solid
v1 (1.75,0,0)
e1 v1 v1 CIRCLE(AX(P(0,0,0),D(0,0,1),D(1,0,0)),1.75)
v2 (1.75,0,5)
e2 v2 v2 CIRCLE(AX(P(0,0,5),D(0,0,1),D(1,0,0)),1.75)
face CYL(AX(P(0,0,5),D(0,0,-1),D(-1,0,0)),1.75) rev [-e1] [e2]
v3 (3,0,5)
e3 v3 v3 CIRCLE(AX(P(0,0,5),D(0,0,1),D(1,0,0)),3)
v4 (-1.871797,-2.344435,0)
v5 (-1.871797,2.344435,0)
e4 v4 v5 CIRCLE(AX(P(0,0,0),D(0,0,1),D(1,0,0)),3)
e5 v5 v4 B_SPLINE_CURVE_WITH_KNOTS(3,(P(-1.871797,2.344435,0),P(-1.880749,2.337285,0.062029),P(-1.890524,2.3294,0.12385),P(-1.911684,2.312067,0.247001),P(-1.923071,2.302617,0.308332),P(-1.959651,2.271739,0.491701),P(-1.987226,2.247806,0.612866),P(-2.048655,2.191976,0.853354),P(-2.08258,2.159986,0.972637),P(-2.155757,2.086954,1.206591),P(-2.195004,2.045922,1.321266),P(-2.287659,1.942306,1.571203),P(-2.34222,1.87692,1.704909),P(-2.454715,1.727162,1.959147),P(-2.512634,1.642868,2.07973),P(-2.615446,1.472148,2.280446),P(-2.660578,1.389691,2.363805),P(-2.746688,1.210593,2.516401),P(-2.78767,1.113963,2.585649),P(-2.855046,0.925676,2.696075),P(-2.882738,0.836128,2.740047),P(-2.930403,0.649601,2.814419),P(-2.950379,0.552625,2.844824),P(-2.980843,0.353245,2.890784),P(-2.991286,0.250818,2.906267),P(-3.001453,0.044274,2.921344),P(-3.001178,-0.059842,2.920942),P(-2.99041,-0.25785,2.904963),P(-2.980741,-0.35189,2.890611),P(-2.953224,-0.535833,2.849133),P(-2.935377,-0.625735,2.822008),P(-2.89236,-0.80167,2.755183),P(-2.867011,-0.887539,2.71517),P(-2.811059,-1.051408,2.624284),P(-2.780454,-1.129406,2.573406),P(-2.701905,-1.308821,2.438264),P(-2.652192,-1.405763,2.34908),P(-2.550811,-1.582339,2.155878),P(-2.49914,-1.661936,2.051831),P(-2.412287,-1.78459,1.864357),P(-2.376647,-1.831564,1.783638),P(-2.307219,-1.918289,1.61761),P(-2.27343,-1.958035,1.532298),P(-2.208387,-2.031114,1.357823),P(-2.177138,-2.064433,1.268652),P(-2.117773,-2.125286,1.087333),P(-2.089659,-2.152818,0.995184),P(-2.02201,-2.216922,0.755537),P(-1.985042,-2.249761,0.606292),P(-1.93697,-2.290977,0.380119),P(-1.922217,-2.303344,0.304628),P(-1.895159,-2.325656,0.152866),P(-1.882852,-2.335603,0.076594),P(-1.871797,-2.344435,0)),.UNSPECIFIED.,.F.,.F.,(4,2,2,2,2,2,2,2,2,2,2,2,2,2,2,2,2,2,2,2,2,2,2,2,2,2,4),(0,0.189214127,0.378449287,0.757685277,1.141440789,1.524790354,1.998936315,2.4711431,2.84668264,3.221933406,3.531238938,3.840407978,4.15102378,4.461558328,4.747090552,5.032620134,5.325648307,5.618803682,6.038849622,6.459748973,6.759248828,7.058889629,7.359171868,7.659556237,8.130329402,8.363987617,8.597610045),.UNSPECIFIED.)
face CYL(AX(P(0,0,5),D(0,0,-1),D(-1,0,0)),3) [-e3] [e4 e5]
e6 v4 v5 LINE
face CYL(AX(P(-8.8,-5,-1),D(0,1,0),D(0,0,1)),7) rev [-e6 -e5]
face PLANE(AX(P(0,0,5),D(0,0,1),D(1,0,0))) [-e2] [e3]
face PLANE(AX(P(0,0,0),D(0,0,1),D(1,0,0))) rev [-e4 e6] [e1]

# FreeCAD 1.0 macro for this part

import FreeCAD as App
import Part
import Sketcher

V = App.Vector

doc = App.newDocument("Part")
body = doc.addObject("PartDesign::Body", "Body")

sketch1 = body.newObject("Sketcher::SketchObject", "Sketch")
sketch1.AttachmentSupport = (doc.getObject("XY_Plane"), [""])
sketch1.MapMode = "FlatFace"
sketch1.addGeometry(Part.Circle(V(0, 0, 0), V(0, 0, 1), 3), False)
sketch1.addGeometry(Part.Circle(V(0, 0, 0), V(0, 0, 1), 1.8), False)
sketch1.addConstraint(Sketcher.Constraint("Coincident", 0, 3, -1, 1))
sketch1.addConstraint(Sketcher.Constraint("Coincident", 1, 3, -1, 1))
sketch1.addConstraint(Sketcher.Constraint("Diameter", 0, 6.0))
sketch1.addConstraint(Sketcher.Constraint("Diameter", 1, 3.5))
pad1 = body.newObject("PartDesign::Pad", "Pad")
pad1.Profile = sketch1
pad1.Length = 5

sketch2 = body.newObject("Sketcher::SketchObject", "Sketch001")
sketch2.AttachmentSupport = (doc.getObject("XZ_Plane"), [""])
sketch2.MapMode = "FlatFace"
sketch2.addGeometry(Part.Circle(V(-9, -1, 0), V(0, 0, 1), 7), False)
sketch2.addConstraint(Sketcher.Constraint("Diameter", 0, 14.0))
sketch2.addConstraint(Sketcher.Constraint("DistanceY", 0, 3, -1, 1, 1.0))
sketch2.addConstraint(Sketcher.Constraint("DistanceX", 0, 3, -1, 1, 8.8))
pocket1 = body.newObject("PartDesign::Pocket", "Pocket")
pocket1.Profile = sketch2
pocket1.Length = 10
pocket1.Midplane = True

doc.recompute()
